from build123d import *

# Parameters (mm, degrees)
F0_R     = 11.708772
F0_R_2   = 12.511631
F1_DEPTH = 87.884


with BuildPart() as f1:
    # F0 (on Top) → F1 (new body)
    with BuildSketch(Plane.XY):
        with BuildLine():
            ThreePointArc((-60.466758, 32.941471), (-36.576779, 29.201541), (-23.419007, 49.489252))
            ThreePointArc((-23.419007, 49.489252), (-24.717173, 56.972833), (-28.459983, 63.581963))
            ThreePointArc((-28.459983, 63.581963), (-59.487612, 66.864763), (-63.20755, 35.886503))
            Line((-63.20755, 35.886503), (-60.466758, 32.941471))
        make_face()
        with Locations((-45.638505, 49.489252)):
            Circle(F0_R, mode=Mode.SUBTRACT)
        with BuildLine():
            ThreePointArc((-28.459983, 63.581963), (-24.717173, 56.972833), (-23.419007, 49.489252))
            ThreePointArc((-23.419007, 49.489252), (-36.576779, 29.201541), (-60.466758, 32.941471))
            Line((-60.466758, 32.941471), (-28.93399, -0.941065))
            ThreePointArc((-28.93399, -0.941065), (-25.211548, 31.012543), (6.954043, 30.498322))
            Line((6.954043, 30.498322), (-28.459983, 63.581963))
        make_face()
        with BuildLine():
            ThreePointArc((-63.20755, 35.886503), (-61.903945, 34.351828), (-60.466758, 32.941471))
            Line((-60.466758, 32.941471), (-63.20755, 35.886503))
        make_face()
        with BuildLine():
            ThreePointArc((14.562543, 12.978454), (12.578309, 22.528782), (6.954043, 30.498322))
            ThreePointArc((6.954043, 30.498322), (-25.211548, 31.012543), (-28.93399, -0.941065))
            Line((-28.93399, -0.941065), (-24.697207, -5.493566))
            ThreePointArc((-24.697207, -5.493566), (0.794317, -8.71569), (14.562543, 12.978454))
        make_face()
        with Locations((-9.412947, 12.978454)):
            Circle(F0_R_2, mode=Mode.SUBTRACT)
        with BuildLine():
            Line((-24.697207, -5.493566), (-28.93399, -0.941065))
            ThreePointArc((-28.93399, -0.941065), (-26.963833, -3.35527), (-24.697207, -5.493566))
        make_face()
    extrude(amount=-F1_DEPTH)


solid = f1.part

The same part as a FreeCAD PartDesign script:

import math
import FreeCAD as App
import Part
import Sketcher
Q = App.Units.Quantity

doc = App.newDocument("Part")
body = doc.addObject("PartDesign::Body", "Body")

# Sketch on XY plane
sketch1 = body.newObject("Sketcher::SketchObject", "Sketch")
sketch1.AttachmentSupport = (doc.getObject("XY_Plane"), [""])
sketch1.MapMode = "FlatFace"
sketch1.addGeometry(Part.LineSegment(App.Vector(-60.5, 32.9, 0), App.Vector(-28.9, -0.9, 0)), False)
sketch1.addGeometry(Part.ArcOfCircle(Part.Circle(App.Vector(-9.4, 13, 0), App.Vector(0, 0, 1), 24), math.radians(-144.51), math.radians(-129.61)), False)
sketch1.addGeometry(Part.ArcOfCircle(Part.Circle(App.Vector(-9.4, 13, 0), App.Vector(0, 0, 1), 24), math.radians(-130), math.radians(0)), False)
sketch1.addGeometry(Part.ArcOfCircle(Part.Circle(App.Vector(-9.4, 13, 0), App.Vector(0, 0, 1), 24), math.radians(0), math.radians(47)), False)
sketch1.addGeometry(Part.LineSegment(App.Vector(7, 30.5, 0), App.Vector(-28.5, 63.6, 0)), False)
sketch1.addGeometry(Part.ArcOfCircle(Part.Circle(App.Vector(-45.6, 49.5, 0), App.Vector(0, 0, 1), 22.2), math.radians(39), math.radians(218)), False)
sketch1.addGeometry(Part.ArcOfCircle(Part.Circle(App.Vector(-45.6, 49.5, 0), App.Vector(0, 0, 1), 22.2), math.radians(-142.25), math.radians(-131.86)), False)
sketch1.addGeometry(Part.Circle(App.Vector(-9.4, 13, 0), App.Vector(0, 0, 1), 12.5), False)
sketch1.addGeometry(Part.Circle(App.Vector(-45.6, 49.5, 0), App.Vector(0, 0, 1), 11.7), False)
sketch1.addConstraint(Sketcher.Constraint("Coincident", 0, 2, 1, 1))
sketch1.addConstraint(Sketcher.Constraint("Tangent", 1, 2, 2, 1))
sketch1.addConstraint(Sketcher.Constraint("Tangent", 2, 2, 3, 1))
sketch1.addConstraint(Sketcher.Constraint("Tangent", 3, 2, 4, 1))
sketch1.addConstraint(Sketcher.Constraint("Coincident", 4, 2, 5, 1))
sketch1.addConstraint(Sketcher.Constraint("Tangent", 5, 2, 6, 1))
sketch1.addConstraint(Sketcher.Constraint("Coincident", 6, 2, 0, 1))
sketch1.addConstraint(Sketcher.Constraint("Coincident", 7, 3, 2, 3))
sketch1.addConstraint(Sketcher.Constraint("Coincident", 8, 3, 5, 3))
sketch1.addConstraint(Sketcher.Constraint("Horizontal", 7, 3, 2, 2))
sketch1.addConstraint(Sketcher.Constraint("Radius", 5, 22.219499))
sketch1.addConstraint(Sketcher.Constraint("Diameter", 7, 25.023262))
sketch1.addConstraint(Sketcher.Constraint("Radius", 2, 23.97549))
sketch1.addConstraint(Sketcher.Constraint("Radius", 6, 22.219439))
sketch1.addConstraint(Sketcher.Constraint("Diameter", 8, 23.417544))
sketch1.addConstraint(Sketcher.Constraint("Radius", 1, 23.975463))
sketch1.addConstraint(Sketcher.Constraint("Radius", 3, 23.975496))
sketch1.addConstraint(Sketcher.Constraint("DistanceY", 3, 3, 5, 3, 36.5108))
sketch1.addConstraint(Sketcher.Constraint("DistanceX", 6, 3, 2, 3, 36.2256))
sketch1.addConstraint(Sketcher.Constraint("DistanceY", 0, 2, 1, 3, 13.9195))
sketch1.addConstraint(Sketcher.Constraint("DistanceY", 1, 2, 0, 2, 4.552501))
sketch1.addConstraint(Sketcher.Constraint("DistanceX", 3, 2, 2, 2, 7.6085))
sketch1.addConstraint(Sketcher.Constraint("DistanceY", -1, 1, 6, 3, 49.489209))
sketch1.addConstraint(Sketcher.Constraint("DistanceX", 0, 2, -1, 1, 28.93399))
sketch1.addConstraint(Sketcher.Constraint("DistanceX", 5, 2, -1, 1, 63.20755))
sketch1.addConstraint(Sketcher.Constraint("DistanceY", -1, 1, 6, 2, 32.941471))
pad1 = body.newObject("PartDesign::Pad", "Pad")
pad1.Profile = sketch1
pad1.Length = Q("3.46 in")
pad1.Reversed = True

doc.recompute()
